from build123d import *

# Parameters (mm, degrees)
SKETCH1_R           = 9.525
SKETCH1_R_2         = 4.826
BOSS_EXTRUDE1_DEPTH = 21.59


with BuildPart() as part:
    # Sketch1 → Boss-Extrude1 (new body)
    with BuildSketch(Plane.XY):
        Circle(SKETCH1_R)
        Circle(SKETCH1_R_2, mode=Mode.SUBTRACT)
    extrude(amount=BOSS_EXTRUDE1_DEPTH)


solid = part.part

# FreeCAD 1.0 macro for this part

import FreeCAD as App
import Part
import Sketcher
Q = App.Units.Quantity

doc = App.newDocument("Part")
params = doc.addObject("Spreadsheet::Sheet", "Params")
for row, (alias, value) in enumerate([
    ("sketch1_diameter", "0.75 in"),
    ("sketch1_diameter2", "0.38 in"),
    ("pad1_length", "0.85 in"),
], start=1):
    params.set(f"A{row}", alias)
    params.set(f"B{row}", "=" + value)
    params.setAlias(f"B{row}", alias)

body = doc.addObject("PartDesign::Body", "Body")

# Sketch on XY plane
sketch1 = doc.addObject("Sketcher::SketchObject", "Sketch")
body.addObject(sketch1)
sketch1.AttachmentSupport = (doc.XY_Plane, [""])
sketch1.MapMode = "FlatFace"
sketch1.addGeometry(Part.Circle(App.Vector(0, 0, 0), App.Vector(0, 0, 1), 9.5), False)
sketch1.addGeometry(Part.Circle(App.Vector(0, 0, 0), App.Vector(0, 0, 1), 4.8), False)
sketch1.addConstraint(Sketcher.Constraint("Coincident", 0, 3, -1, 1))
sketch1.addConstraint(Sketcher.Constraint("Coincident", 1, 3, -1, 1))
sketch1.addConstraint(Sketcher.Constraint("Diameter", 0, Q("0.75 in")))
sketch1.addConstraint(Sketcher.Constraint("Diameter", 1, Q("0.38 in")))
sketch1.setExpression("Constraints[2]", "Params.sketch1_diameter")
sketch1.setExpression("Constraints[3]", "Params.sketch1_diameter2")
pad1 = doc.addObject("PartDesign::Pad", "Pad")
body.addObject(pad1)
pad1.Profile = sketch1
pad1.setExpression("Length", "Params.pad1_length")

doc.recompute()
